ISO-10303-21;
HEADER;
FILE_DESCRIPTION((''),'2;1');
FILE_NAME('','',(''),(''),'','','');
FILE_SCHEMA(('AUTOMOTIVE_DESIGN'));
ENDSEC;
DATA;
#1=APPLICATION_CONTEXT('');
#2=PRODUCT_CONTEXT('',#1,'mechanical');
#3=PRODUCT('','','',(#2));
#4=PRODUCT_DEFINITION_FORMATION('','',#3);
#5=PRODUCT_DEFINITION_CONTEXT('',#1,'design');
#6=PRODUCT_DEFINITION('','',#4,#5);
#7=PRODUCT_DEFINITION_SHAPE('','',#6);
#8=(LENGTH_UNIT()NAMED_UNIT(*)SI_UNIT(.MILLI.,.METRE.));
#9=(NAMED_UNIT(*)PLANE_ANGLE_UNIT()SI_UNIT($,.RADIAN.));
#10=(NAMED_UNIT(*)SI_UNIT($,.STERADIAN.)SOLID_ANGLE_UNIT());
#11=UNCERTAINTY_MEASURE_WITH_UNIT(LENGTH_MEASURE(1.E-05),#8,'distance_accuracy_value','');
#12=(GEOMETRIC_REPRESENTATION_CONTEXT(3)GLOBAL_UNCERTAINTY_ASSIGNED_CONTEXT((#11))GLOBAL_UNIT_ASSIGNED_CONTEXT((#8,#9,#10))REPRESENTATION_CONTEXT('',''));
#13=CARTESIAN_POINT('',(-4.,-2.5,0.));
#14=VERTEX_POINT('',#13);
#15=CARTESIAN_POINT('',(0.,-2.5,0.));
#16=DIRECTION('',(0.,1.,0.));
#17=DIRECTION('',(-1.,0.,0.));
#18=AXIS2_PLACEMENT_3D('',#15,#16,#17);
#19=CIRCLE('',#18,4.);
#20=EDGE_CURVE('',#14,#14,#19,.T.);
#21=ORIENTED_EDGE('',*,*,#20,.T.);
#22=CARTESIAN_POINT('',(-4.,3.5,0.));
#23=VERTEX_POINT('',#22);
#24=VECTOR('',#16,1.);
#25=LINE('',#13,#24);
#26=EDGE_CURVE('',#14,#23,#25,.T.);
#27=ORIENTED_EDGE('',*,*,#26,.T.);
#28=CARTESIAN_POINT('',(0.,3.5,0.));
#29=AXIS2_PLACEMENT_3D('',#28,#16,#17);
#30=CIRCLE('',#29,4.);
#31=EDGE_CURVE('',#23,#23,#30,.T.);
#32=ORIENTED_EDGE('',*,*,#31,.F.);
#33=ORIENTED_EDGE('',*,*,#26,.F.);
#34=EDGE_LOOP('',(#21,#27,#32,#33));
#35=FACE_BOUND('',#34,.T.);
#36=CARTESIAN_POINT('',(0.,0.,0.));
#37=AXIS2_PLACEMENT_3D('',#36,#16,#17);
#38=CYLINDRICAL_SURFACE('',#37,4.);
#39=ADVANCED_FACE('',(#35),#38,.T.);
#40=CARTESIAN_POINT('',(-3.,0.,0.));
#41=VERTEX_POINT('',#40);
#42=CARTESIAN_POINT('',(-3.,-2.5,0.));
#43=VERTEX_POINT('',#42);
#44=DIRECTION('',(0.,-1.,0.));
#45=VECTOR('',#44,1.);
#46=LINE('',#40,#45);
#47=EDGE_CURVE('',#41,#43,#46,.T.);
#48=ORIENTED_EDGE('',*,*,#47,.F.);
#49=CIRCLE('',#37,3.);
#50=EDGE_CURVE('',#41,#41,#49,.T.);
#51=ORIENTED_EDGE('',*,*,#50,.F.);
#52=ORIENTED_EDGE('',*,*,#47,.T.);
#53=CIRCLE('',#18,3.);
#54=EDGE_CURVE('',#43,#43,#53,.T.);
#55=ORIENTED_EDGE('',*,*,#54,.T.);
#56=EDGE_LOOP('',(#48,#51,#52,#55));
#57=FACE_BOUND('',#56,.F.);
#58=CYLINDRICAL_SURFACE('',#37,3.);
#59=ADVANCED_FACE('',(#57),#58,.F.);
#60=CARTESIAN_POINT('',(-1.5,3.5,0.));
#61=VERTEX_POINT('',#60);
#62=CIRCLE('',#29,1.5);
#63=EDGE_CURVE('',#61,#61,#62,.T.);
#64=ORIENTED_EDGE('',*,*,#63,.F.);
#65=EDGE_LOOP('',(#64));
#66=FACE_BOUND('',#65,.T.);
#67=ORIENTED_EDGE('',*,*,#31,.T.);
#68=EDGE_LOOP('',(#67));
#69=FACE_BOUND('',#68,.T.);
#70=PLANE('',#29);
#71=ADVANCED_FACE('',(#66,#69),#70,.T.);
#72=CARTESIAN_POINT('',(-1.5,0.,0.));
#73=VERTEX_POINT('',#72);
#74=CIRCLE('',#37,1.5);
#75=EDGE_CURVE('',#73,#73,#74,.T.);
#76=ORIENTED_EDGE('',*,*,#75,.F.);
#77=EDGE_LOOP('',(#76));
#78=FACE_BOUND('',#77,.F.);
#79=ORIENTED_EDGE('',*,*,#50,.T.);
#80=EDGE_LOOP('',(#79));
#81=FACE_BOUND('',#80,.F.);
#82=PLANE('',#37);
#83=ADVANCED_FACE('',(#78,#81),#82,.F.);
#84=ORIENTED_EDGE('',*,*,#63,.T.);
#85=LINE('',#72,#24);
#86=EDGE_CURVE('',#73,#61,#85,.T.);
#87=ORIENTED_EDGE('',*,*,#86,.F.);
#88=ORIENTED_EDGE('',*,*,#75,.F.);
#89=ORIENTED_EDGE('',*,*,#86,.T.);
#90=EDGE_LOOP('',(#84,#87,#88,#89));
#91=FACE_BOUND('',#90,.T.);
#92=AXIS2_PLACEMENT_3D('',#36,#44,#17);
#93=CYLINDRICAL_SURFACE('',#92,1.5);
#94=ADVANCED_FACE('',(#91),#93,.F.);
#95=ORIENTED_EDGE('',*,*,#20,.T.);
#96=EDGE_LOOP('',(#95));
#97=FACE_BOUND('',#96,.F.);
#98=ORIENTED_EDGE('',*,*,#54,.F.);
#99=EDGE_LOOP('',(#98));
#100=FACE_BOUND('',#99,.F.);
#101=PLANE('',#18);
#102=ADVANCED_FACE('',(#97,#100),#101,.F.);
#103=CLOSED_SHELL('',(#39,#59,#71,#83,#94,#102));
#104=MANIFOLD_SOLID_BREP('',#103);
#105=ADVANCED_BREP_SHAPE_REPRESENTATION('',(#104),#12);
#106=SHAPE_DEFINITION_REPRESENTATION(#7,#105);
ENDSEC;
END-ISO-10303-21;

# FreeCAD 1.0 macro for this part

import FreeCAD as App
import Part
import Sketcher

doc = App.newDocument("Part")
body = doc.addObject("PartDesign::Body", "Body")

# Sketch on XZ plane
sketch1 = doc.addObject("Sketcher::SketchObject", "Sketch")
body.addObject(sketch1)
sketch1.AttachmentSupport = (doc.XZ_Plane, [""])
sketch1.MapMode = "FlatFace"
sketch1.addGeometry([
    Part.Circle(App.Vector(0, 0, 0), App.Vector(0, 0, 1), 4),
    Part.Circle(App.Vector(0, 0, 0), App.Vector(0, 0, 1), 3),
], False)
sketch1.addConstraint([
    Sketcher.Constraint("Coincident", 0, 3, -1, 1),
    Sketcher.Constraint("Coincident", 1, 3, -1, 1),
    Sketcher.Constraint("Diameter", 0, 8.0),
    Sketcher.Constraint("Diameter", 1, 6.0),
])
pad1 = doc.addObject("PartDesign::Pad", "Pad")
body.addObject(pad1)
pad1.Profile = sketch1
pad1.Length = 2.5

# Sketch on XZ plane
sketch2 = doc.addObject("Sketcher::SketchObject", "Sketch001")
body.addObject(sketch2)
sketch2.AttachmentSupport = (doc.XZ_Plane, [""])
sketch2.MapMode = "FlatFace"
sketch2.addGeometry([
    Part.Circle(App.Vector(0, 0, 0), App.Vector(0, 0, 1), 4),
    Part.Circle(App.Vector(0, 0, 0), App.Vector(0, 0, 1), 1.5),
], False)
sketch2.addConstraint([
    Sketcher.Constraint("Coincident", 0, 3, -1, 1),
    Sketcher.Constraint("Coincident", 1, 3, -1, 1),
    Sketcher.Constraint("Diameter", 0, 8.0),
    Sketcher.Constraint("Diameter", 1, 3.0),
])
pad2 = doc.addObject("PartDesign::Pad", "Pad001")
body.addObject(pad2)
pad2.Profile = sketch2
pad2.Length = 3.5
pad2.Reversed = True

doc.recompute()
